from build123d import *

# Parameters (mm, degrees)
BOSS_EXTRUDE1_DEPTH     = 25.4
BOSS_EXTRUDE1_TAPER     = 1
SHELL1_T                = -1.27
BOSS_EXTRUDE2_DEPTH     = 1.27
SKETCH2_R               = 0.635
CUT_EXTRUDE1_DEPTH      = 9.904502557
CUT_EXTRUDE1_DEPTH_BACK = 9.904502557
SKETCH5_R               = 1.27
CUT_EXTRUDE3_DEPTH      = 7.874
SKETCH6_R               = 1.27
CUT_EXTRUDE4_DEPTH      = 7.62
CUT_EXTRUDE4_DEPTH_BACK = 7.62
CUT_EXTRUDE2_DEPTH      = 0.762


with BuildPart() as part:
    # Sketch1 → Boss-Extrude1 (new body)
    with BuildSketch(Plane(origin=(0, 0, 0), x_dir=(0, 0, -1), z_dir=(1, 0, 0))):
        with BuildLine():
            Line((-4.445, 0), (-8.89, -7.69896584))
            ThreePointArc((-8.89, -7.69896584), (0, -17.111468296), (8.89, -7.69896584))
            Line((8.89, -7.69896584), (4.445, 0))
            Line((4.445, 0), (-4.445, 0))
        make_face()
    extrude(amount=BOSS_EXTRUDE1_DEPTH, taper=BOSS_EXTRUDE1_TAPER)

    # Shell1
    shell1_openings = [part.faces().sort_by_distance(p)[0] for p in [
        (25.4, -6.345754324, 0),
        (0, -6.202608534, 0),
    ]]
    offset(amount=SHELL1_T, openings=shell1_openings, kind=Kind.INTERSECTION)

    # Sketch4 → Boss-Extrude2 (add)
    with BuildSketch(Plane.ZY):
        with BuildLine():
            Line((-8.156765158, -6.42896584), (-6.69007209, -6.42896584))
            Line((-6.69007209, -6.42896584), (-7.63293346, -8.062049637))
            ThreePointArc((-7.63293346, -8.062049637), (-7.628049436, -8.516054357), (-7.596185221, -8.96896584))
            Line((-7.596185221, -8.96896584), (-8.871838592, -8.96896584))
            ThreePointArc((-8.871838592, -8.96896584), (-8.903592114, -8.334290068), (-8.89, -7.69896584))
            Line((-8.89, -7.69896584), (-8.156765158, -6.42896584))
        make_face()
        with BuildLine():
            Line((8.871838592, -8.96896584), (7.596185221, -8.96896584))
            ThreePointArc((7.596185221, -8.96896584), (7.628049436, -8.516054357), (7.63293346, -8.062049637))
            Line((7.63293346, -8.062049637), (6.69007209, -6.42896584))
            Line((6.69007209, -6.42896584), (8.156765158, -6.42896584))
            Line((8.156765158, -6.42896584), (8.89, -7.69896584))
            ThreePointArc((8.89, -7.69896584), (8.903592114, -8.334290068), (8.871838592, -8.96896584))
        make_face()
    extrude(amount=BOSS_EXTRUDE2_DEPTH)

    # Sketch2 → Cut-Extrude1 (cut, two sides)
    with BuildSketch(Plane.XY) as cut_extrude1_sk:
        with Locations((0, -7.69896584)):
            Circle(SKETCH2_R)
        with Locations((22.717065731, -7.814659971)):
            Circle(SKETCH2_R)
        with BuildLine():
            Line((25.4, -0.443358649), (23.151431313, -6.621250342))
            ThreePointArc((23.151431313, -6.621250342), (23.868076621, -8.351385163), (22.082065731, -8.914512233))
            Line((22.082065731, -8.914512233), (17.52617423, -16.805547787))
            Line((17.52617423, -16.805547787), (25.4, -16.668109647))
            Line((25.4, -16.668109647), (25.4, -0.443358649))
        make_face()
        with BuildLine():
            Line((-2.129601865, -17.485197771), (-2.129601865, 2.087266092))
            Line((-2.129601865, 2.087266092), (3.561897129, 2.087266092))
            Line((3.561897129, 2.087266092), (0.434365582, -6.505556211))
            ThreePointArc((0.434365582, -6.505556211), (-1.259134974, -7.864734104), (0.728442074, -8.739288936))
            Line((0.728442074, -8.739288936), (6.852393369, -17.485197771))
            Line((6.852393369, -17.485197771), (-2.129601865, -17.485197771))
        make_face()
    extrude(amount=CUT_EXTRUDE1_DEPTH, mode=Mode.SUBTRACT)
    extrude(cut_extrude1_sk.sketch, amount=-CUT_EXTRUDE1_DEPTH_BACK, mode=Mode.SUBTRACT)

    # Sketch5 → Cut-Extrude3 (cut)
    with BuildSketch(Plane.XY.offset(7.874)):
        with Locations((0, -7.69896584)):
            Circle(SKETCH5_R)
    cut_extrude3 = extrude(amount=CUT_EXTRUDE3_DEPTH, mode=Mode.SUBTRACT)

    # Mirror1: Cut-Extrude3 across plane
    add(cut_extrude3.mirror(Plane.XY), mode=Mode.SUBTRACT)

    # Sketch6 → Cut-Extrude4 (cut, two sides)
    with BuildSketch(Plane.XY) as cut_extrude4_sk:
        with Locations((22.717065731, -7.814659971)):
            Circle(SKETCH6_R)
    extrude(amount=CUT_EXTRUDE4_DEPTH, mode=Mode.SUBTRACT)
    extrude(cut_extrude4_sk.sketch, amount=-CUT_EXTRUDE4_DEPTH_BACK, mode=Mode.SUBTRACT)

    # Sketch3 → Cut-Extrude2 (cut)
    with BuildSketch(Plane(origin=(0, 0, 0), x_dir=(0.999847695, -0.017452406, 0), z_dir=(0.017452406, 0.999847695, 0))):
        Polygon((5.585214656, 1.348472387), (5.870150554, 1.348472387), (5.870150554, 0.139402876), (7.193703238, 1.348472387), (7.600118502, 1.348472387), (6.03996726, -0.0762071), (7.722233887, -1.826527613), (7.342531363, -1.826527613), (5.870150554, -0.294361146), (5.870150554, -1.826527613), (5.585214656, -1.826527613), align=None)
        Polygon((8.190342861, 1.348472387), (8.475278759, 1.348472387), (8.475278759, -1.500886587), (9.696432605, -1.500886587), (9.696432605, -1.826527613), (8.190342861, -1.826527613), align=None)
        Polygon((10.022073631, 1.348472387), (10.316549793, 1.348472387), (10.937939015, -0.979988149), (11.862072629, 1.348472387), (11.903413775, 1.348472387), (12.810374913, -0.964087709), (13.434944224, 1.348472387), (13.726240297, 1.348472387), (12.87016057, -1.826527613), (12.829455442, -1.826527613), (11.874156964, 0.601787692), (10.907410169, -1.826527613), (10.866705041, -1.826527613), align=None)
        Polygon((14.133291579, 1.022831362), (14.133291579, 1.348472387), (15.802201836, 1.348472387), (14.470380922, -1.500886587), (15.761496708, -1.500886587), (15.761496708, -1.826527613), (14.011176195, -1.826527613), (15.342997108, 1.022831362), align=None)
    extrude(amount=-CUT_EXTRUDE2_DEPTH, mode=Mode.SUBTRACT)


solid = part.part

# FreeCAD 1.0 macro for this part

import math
import FreeCAD as App
import Part
import Sketcher
Q = App.Units.Quantity


def faces_at(feature, points):
    """Names of the faces that lie closest to the given points."""
    faces = feature.Shape.Faces
    near = lambda p: min(range(len(faces)), key=lambda i: faces[i].distToShape(Part.Vertex(*p))[0])
    return sorted({f"Face{near(p) + 1}" for p in points})

doc = App.newDocument("Part")
body = doc.addObject("PartDesign::Body", "Body")

# Sketch on YZ plane
sketch1 = body.newObject("Sketcher::SketchObject", "Sketch")
sketch1.AttachmentSupport = (doc.getObject("YZ_Plane"), [""])
sketch1.MapMode = "FlatFace"
sketch1.addGeometry(Part.LineSegment(App.Vector(0, 4, 0), App.Vector(-8, 9, 0)), False)
sketch1.addGeometry(Part.ArcOfCircle(Part.Circle(App.Vector(-8, 0, 0), App.Vector(0, 0, 1), 9), math.radians(87), math.radians(273)), False)
sketch1.addGeometry(Part.LineSegment(App.Vector(-8, -9, 0), App.Vector(0, -4, 0)), False)
sketch1.addGeometry(Part.LineSegment(App.Vector(0, -4, 0), App.Vector(0, 4, 0)), False)
sketch1.addConstraint(Sketcher.Constraint("Coincident", 0, 2, 1, 1))
sketch1.addConstraint(Sketcher.Constraint("Coincident", 1, 2, 2, 1))
sketch1.addConstraint(Sketcher.Constraint("Coincident", 2, 2, 3, 1))
sketch1.addConstraint(Sketcher.Constraint("Coincident", 3, 2, 0, 1))
sketch1.addConstraint(Sketcher.Constraint("Vertical", 3))
sketch1.addConstraint(Sketcher.Constraint("Symmetric", 2, 2, 3, 2, -1, 1))
sketch1.addConstraint(Sketcher.Constraint("Symmetric", 0, 2, 1, 2, -1))
sketch1.addConstraint(Sketcher.Constraint("Angle", 0, Q("150 deg")))
sketch1.addConstraint(Sketcher.Constraint("DistanceY", 3, 1, 3, 2, Q("0.35 in")))
sketch1.addConstraint(Sketcher.Constraint("DistanceY", 1, 2, 0, 2, Q("0.7 in")))
sketch1.addConstraint(Sketcher.Constraint("DistanceX", 1, 3, 0, 2, Q("0.02 in")))
pad1 = body.newObject("PartDesign::Pad", "Pad")
pad1.Profile = sketch1
pad1.Length = Q("1 in")
pad1.TaperAngle = -1
doc.recompute()

thickness = body.newObject("PartDesign::Thickness", "Thickness")
thickness.Base = (pad1, faces_at(pad1, [(25.4, -8.442, 0.013), (0, -8.435, 0.013)]))
thickness.Value = Q("0.05 in")
thickness.Reversed = True
thickness.Join = "Intersection"

# Sketch on YZ plane
sketch2 = body.newObject("Sketcher::SketchObject", "Sketch001")
sketch2.AttachmentSupport = (doc.getObject("YZ_Plane"), [""])
sketch2.MapMode = "FlatFace"
sketch2.addGeometry(Part.LineSegment(App.Vector(-6.4, -6.7, 0), App.Vector(-6.4, -8.2, 0)), False)
sketch2.addGeometry(Part.LineSegment(App.Vector(-6.4, -8.2, 0), App.Vector(-7.7, -8.9, 0)), False)
sketch2.addGeometry(Part.ArcOfCircle(Part.Circle(App.Vector(-8.2, 0, 0), App.Vector(0, 0, 1), 8.9), math.radians(-94.91), math.radians(-86.73)), False)
sketch2.addGeometry(Part.LineSegment(App.Vector(-9, -8.9, 0), App.Vector(-9, -7.6, 0)), False)
sketch2.addGeometry(Part.ArcOfCircle(Part.Circle(App.Vector(-8.2, 0, 0), App.Vector(0, 0, 1), 7.6), math.radians(-95.73), math.radians(-88.91)), False)
sketch2.addGeometry(Part.LineSegment(App.Vector(-8.1, -7.6, 0), App.Vector(-6.4, -6.7, 0)), False)
sketch2.addGeometry(Part.LineSegment(App.Vector(-9, 7.6, 0), App.Vector(-9, 8.9, 0)), False)
sketch2.addGeometry(Part.ArcOfCircle(Part.Circle(App.Vector(-8.2, 0, 0), App.Vector(0, 0, 1), 8.9), math.radians(86.73), math.radians(94.91)), False)
sketch2.addGeometry(Part.LineSegment(App.Vector(-7.7, 8.9, 0), App.Vector(-6.4, 8.2, 0)), False)
sketch2.addGeometry(Part.LineSegment(App.Vector(-6.4, 8.2, 0), App.Vector(-6.4, 6.7, 0)), False)
sketch2.addGeometry(Part.LineSegment(App.Vector(-6.4, 6.7, 0), App.Vector(-8.1, 7.6, 0)), False)
sketch2.addGeometry(Part.ArcOfCircle(Part.Circle(App.Vector(-8.2, 0, 0), App.Vector(0, 0, 1), 7.6), math.radians(88.91), math.radians(95.73)), False)
sketch2.addConstraint(Sketcher.Constraint("Coincident", 0, 2, 1, 1))
sketch2.addConstraint(Sketcher.Constraint("Coincident", 1, 2, 2, 2))
sketch2.addConstraint(Sketcher.Constraint("Coincident", 2, 1, 3, 1))
sketch2.addConstraint(Sketcher.Constraint("Coincident", 3, 2, 4, 1))
sketch2.addConstraint(Sketcher.Constraint("Coincident", 4, 2, 5, 1))
sketch2.addConstraint(Sketcher.Constraint("Coincident", 5, 2, 0, 1))
sketch2.addConstraint(Sketcher.Constraint("Coincident", 6, 2, 7, 2))
sketch2.addConstraint(Sketcher.Constraint("Coincident", 7, 1, 8, 1))
sketch2.addConstraint(Sketcher.Constraint("Coincident", 8, 2, 9, 1))
sketch2.addConstraint(Sketcher.Constraint("Coincident", 9, 2, 10, 1))
sketch2.addConstraint(Sketcher.Constraint("Coincident", 10, 2, 11, 1))
sketch2.addConstraint(Sketcher.Constraint("Coincident", 11, 2, 6, 1))
sketch2.addConstraint(Sketcher.Constraint("Vertical", 0))
sketch2.addConstraint(Sketcher.Constraint("Vertical", 3))
sketch2.addConstraint(Sketcher.Constraint("Vertical", 6))
sketch2.addConstraint(Sketcher.Constraint("Vertical", 9))
sketch2.addConstraint(Sketcher.Constraint("Coincident", 4, 3, 2, 3))
sketch2.addConstraint(Sketcher.Constraint("Coincident", 7, 3, 2, 3))
sketch2.addConstraint(Sketcher.Constraint("Coincident", 11, 3, 2, 3))
sketch2.addConstraint(Sketcher.Constraint("Equal", 2, 7))
sketch2.addConstraint(Sketcher.Constraint("Equal", 4, 11))
sketch2.addConstraint(Sketcher.Constraint("Symmetric", 2, 1, 6, 2, -1))
sketch2.addConstraint(Sketcher.Constraint("Symmetric", 0, 2, 8, 2, -1))
sketch2.addConstraint(Sketcher.Constraint("Parallel", 1, 5))
sketch2.addConstraint(Sketcher.Constraint("Parallel", 8, 10))
sketch2.addConstraint(Sketcher.Constraint("Vertical", 1, 2, 7, 1))
sketch2.addConstraint(Sketcher.Constraint("Vertical", 4, 2, 10, 2))
sketch2.addConstraint(Sketcher.Constraint("Angle", 1, Q("-150 deg")))
sketch2.addConstraint(Sketcher.Constraint("DistanceX", 2, 1, 0, 2, Q("0.1 in")))
sketch2.addConstraint(Sketcher.Constraint("DistanceY", 1, 2, -1, 1, Q("0.35 in")))
sketch2.addConstraint(Sketcher.Constraint("DistanceX", 7, 3, 0, 2, Q("0.07 in")))
sketch2.addConstraint(Sketcher.Constraint("DistanceX", 1, 2, 0, 2, Q("0.05 in")))
sketch2.addConstraint(Sketcher.Constraint("Radius", 4, Q("7.634309 mm")))
sketch2.addConstraint(Sketcher.Constraint("DistanceY", 0, 2, 0, 1, Q("1.466693 mm")))
sketch2.addConstraint(Sketcher.Constraint("DistanceX", 4, 2, -1, 1, Q("8.06205 mm")))
pad2 = body.newObject("PartDesign::Pad", "Pad001")
pad2.Profile = sketch2
pad2.Length = Q("0.05 in")
pad2.Reversed = True

# Sketch on XY plane
sketch3 = body.newObject("Sketcher::SketchObject", "Sketch002")
sketch3.AttachmentSupport = (doc.getObject("XY_Plane"), [""])
sketch3.MapMode = "FlatFace"
sketch3.addGeometry(Part.Circle(App.Vector(0, -7.7, 0), App.Vector(0, 0, 1), 0.6), False)
sketch3.addGeometry(Part.Circle(App.Vector(22.7, -7.8, 0), App.Vector(0, 0, 1), 0.6), False)
sketch3.addGeometry(Part.LineSegment(App.Vector(25.4, -0.4, 0), App.Vector(23.2, -6.6, 0)), False)
sketch3.addGeometry(Part.ArcOfCircle(Part.Circle(App.Vector(22.7, -7.8, 0), App.Vector(0, 0, 1), 1.3), math.radians(-120), math.radians(70)), False)
sketch3.addGeometry(Part.LineSegment(App.Vector(22.1, -8.9, 0), App.Vector(17.5, -16.8, 0)), False)
sketch3.addGeometry(Part.LineSegment(App.Vector(17.5, -16.8, 0), App.Vector(25.4, -16.7, 0)), False)
sketch3.addGeometry(Part.LineSegment(App.Vector(25.4, -16.7, 0), App.Vector(25.4, -0.4, 0)), False)
sketch3.addGeometry(Part.LineSegment(App.Vector(-2.1, 2.1, 0), App.Vector(-2.1, -17.5, 0)), False)
sketch3.addGeometry(Part.LineSegment(App.Vector(-2.1, -17.5, 0), App.Vector(6.9, -17.5, 0)), False)
sketch3.addGeometry(Part.LineSegment(App.Vector(6.9, -17.5, 0), App.Vector(0.7, -8.7, 0)), False)
sketch3.addGeometry(Part.ArcOfCircle(Part.Circle(App.Vector(0, -7.7, 0), App.Vector(0, 0, 1), 1.3), math.radians(70), math.radians(305)), False)
sketch3.addGeometry(Part.LineSegment(App.Vector(0.4, -6.5, 0), App.Vector(3.6, 2.1, 0)), False)
sketch3.addGeometry(Part.LineSegment(App.Vector(3.6, 2.1, 0), App.Vector(-2.1, 2.1, 0)), False)
sketch3.addConstraint(Sketcher.Constraint("Coincident", 2, 2, 3, 2))
sketch3.addConstraint(Sketcher.Constraint("Coincident", 3, 1, 4, 1))
sketch3.addConstraint(Sketcher.Constraint("Coincident", 4, 2, 5, 1))
sketch3.addConstraint(Sketcher.Constraint("Coincident", 5, 2, 6, 1))
sketch3.addConstraint(Sketcher.Constraint("Coincident", 6, 2, 2, 1))
sketch3.addConstraint(Sketcher.Constraint("Coincident", 7, 2, 8, 1))
sketch3.addConstraint(Sketcher.Constraint("Coincident", 8, 2, 9, 1))
sketch3.addConstraint(Sketcher.Constraint("Coincident", 9, 2, 10, 2))
sketch3.addConstraint(Sketcher.Constraint("Coincident", 10, 1, 11, 1))
sketch3.addConstraint(Sketcher.Constraint("Coincident", 11, 2, 12, 1))
sketch3.addConstraint(Sketcher.Constraint("Coincident", 12, 2, 7, 1))
sketch3.addConstraint(Sketcher.Constraint("Vertical", 6))
sketch3.addConstraint(Sketcher.Constraint("Vertical", 7))
sketch3.addConstraint(Sketcher.Constraint("Horizontal", 8))
sketch3.addConstraint(Sketcher.Constraint("Horizontal", 12))
sketch3.addConstraint(Sketcher.Constraint("Coincident", 3, 3, 1, 3))
sketch3.addConstraint(Sketcher.Constraint("Coincident", 10, 3, 0, 3))
sketch3.addConstraint(Sketcher.Constraint("Equal", 0, 1))
sketch3.addConstraint(Sketcher.Constraint("Equal", 3, 10))
sketch3.addConstraint(Sketcher.Constraint("PointOnObject", 0, 3, -2))
sketch3.addConstraint(Sketcher.Constraint("Parallel", 2, 11))
sketch3.addConstraint(Sketcher.Constraint("Diameter", 0, Q("0.05 in")))
sketch3.addConstraint(Sketcher.Constraint("Radius", 3, Q("0.05 in")))
sketch3.addConstraint(Sketcher.Constraint("DistanceX", -1, 1, 5, 2, Q("1 in")))
sketch3.addConstraint(Sketcher.Constraint("Angle", 2, Q("-110 deg")))
sketch3.addConstraint(Sketcher.Constraint("Angle", 4, Q("-120 deg")))
sketch3.addConstraint(Sketcher.Constraint("Angle", 5, Q("1 deg")))
sketch3.addConstraint(Sketcher.Constraint("Angle", 9, Q("125 deg")))
sketch3.addConstraint(Sketcher.Constraint("DistanceX", 3, 1, 1, 3, Q("0.025 in")))
sketch3.addConstraint(Sketcher.Constraint("DistanceX", 12, 2, 12, 1, Q("5.691499 mm")))
sketch3.addConstraint(Sketcher.Constraint("DistanceY", 10, 1, 11, 2, Q("0.3383001 in")))
sketch3.addConstraint(Sketcher.Constraint("DistanceY", 6, 1, 6, 2, Q("16.224751 mm")))
sketch3.addConstraint(Sketcher.Constraint("DistanceX", 7, 2, -1, 1, Q("2.129602 mm")))
sketch3.addConstraint(Sketcher.Constraint("DistanceY", 3, 3, 6, 2, Q("7.371301 mm")))
sketch3.addConstraint(Sketcher.Constraint("DistanceX", 8, 1, 8, 2, Q("8.981995 mm")))
sketch3.addConstraint(Sketcher.Constraint("DistanceY", 7, 2, 7, 1, Q("19.572464 mm")))
sketch3.addConstraint(Sketcher.Constraint("DistanceY", 1, 3, -1, 1, Q("7.81466 mm")))
sketch3.addConstraint(Sketcher.Constraint("DistanceX", -1, 1, 2, 2, Q("23.151431 mm")))
sketch3.addConstraint(Sketcher.Constraint("DistanceY", 9, 2, -1, 1, Q("8.739289 mm")))
pocket1 = body.newObject("PartDesign::Pocket", "Pocket")
pocket1.Profile = sketch3
pocket1.Type = "ThroughAll"
pocket1.Midplane = True

# Sketch on XY plane
sketch4 = body.newObject("Sketcher::SketchObject", "Sketch003")
sketch4.AttachmentSupport = (doc.getObject("XY_Plane"), [""])
sketch4.MapMode = "FlatFace"
sketch4.AttachmentOffset = App.Placement(App.Vector(0, 0, 0.31 * 25.4), App.Rotation())
sketch4.addGeometry(Part.Circle(App.Vector(0, -7.7, 0), App.Vector(0, 0, 1), 1.3), False)
sketch4.addConstraint(Sketcher.Constraint("PointOnObject", 0, 3, -2))
sketch4.addConstraint(Sketcher.Constraint("Diameter", 0, Q("0.1 in")))
sketch4.addConstraint(Sketcher.Constraint("DistanceY", 0, 3, -1, 1, Q("7.698966 mm")))
pocket2 = body.newObject("PartDesign::Pocket", "Pocket001")
pocket2.Profile = sketch4
pocket2.Length = Q("0.31 in")
pocket2.Reversed = True
doc.recompute()

mirrored = body.newObject("PartDesign::Mirrored", "Mirrored")
mirrored.Originals = [pocket2]
mirrored.MirrorPlane = (doc.getObject("XY_Plane"), [""])
body.Tip = mirrored

# Sketch on XY plane
sketch5 = body.newObject("Sketcher::SketchObject", "Sketch004")
sketch5.AttachmentSupport = (doc.getObject("XY_Plane"), [""])
sketch5.MapMode = "FlatFace"
sketch5.addGeometry(Part.Circle(App.Vector(22.7, -7.8, 0), App.Vector(0, 0, 1), 1.3), False)
sketch5.addConstraint(Sketcher.Constraint("Diameter", 0, Q("0.1 in")))
sketch5.addConstraint(Sketcher.Constraint("DistanceY", 0, 3, -1, 1, Q("7.81466 mm")))
sketch5.addConstraint(Sketcher.Constraint("DistanceX", -1, 1, 0, 3, Q("22.717066 mm")))
pocket3 = body.newObject("PartDesign::Pocket", "Pocket002")
pocket3.Profile = sketch5
pocket3.Type = "TwoLengths"
pocket3.Length = Q("0.3 in")
pocket3.Length2 = Q("0.3 in")
pocket3.Reversed = True

# Sketch on an angled plane
sketch6 = body.newObject("Sketcher::SketchObject", "Sketch005")
sketch6.Placement = App.Placement(App.Vector(0, 0, 0), App.Rotation(App.Vector(0.999847695, -0.017452406, 0), App.Vector(0, 0, -1), App.Vector(0.017452406, 0.999847695, 0), "ZXY"))
sketch6.addGeometry(Part.LineSegment(App.Vector(5.87, 1.348, 0), App.Vector(5.585, 1.348, 0)), False)
sketch6.addGeometry(Part.LineSegment(App.Vector(5.585, 1.348, 0), App.Vector(5.585, -1.827, 0)), False)
sketch6.addGeometry(Part.LineSegment(App.Vector(5.585, -1.827, 0), App.Vector(5.87, -1.827, 0)), False)
sketch6.addGeometry(Part.LineSegment(App.Vector(5.87, -1.827, 0), App.Vector(5.87, -0.294, 0)), False)
sketch6.addGeometry(Part.LineSegment(App.Vector(5.87, -0.294, 0), App.Vector(7.343, -1.827, 0)), False)
sketch6.addGeometry(Part.LineSegment(App.Vector(7.343, -1.827, 0), App.Vector(7.722, -1.827, 0)), False)
sketch6.addGeometry(Part.LineSegment(App.Vector(7.722, -1.827, 0), App.Vector(6.04, -0.076, 0)), False)
sketch6.addGeometry(Part.LineSegment(App.Vector(6.04, -0.076, 0), App.Vector(7.6, 1.348, 0)), False)
sketch6.addGeometry(Part.LineSegment(App.Vector(7.6, 1.348, 0), App.Vector(7.194, 1.348, 0)), False)
sketch6.addGeometry(Part.LineSegment(App.Vector(7.194, 1.348, 0), App.Vector(5.87, 0.139, 0)), False)
sketch6.addGeometry(Part.LineSegment(App.Vector(5.87, 0.139, 0), App.Vector(5.87, 1.348, 0)), False)
sketch6.addGeometry(Part.LineSegment(App.Vector(8.475, 1.348, 0), App.Vector(8.19, 1.348, 0)), False)
sketch6.addGeometry(Part.LineSegment(App.Vector(8.19, 1.348, 0), App.Vector(8.19, -1.827, 0)), False)
sketch6.addGeometry(Part.LineSegment(App.Vector(8.19, -1.827, 0), App.Vector(9.696, -1.827, 0)), False)
sketch6.addGeometry(Part.LineSegment(App.Vector(9.696, -1.827, 0), App.Vector(9.696, -1.501, 0)), False)
sketch6.addGeometry(Part.LineSegment(App.Vector(9.696, -1.501, 0), App.Vector(8.475, -1.501, 0)), False)
sketch6.addGeometry(Part.LineSegment(App.Vector(8.475, -1.501, 0), App.Vector(8.475, 1.348, 0)), False)
sketch6.addGeometry(Part.LineSegment(App.Vector(10.317, 1.348, 0), App.Vector(10.022, 1.348, 0)), False)
sketch6.addGeometry(Part.LineSegment(App.Vector(10.022, 1.348, 0), App.Vector(10.867, -1.827, 0)), False)
sketch6.addGeometry(Part.LineSegment(App.Vector(10.867, -1.827, 0), App.Vector(10.907, -1.827, 0)), False)
sketch6.addGeometry(Part.LineSegment(App.Vector(10.907, -1.827, 0), App.Vector(11.874, 0.602, 0)), False)
sketch6.addGeometry(Part.LineSegment(App.Vector(11.874, 0.602, 0), App.Vector(12.829, -1.827, 0)), False)
sketch6.addGeometry(Part.LineSegment(App.Vector(12.829, -1.827, 0), App.Vector(12.87, -1.827, 0)), False)
sketch6.addGeometry(Part.LineSegment(App.Vector(12.87, -1.827, 0), App.Vector(13.726, 1.348, 0)), False)
sketch6.addGeometry(Part.LineSegment(App.Vector(13.726, 1.348, 0), App.Vector(13.435, 1.348, 0)), False)
sketch6.addGeometry(Part.LineSegment(App.Vector(13.435, 1.348, 0), App.Vector(12.81, -0.964, 0)), False)
sketch6.addGeometry(Part.LineSegment(App.Vector(12.81, -0.964, 0), App.Vector(11.903, 1.348, 0)), False)
sketch6.addGeometry(Part.LineSegment(App.Vector(11.903, 1.348, 0), App.Vector(11.862, 1.348, 0)), False)
sketch6.addGeometry(Part.LineSegment(App.Vector(11.862, 1.348, 0), App.Vector(10.938, -0.98, 0)), False)
sketch6.addGeometry(Part.LineSegment(App.Vector(10.938, -0.98, 0), App.Vector(10.317, 1.348, 0)), False)
sketch6.addGeometry(Part.LineSegment(App.Vector(14.133, 1.348, 0), App.Vector(14.133, 1.023, 0)), False)
sketch6.addGeometry(Part.LineSegment(App.Vector(14.133, 1.023, 0), App.Vector(15.343, 1.023, 0)), False)
sketch6.addGeometry(Part.LineSegment(App.Vector(15.343, 1.023, 0), App.Vector(14.011, -1.827, 0)), False)
sketch6.addGeometry(Part.LineSegment(App.Vector(14.011, -1.827, 0), App.Vector(15.761, -1.827, 0)), False)
sketch6.addGeometry(Part.LineSegment(App.Vector(15.761, -1.827, 0), App.Vector(15.761, -1.501, 0)), False)
sketch6.addGeometry(Part.LineSegment(App.Vector(15.761, -1.501, 0), App.Vector(14.47, -1.501, 0)), False)
sketch6.addGeometry(Part.LineSegment(App.Vector(14.47, -1.501, 0), App.Vector(15.802, 1.348, 0)), False)
sketch6.addGeometry(Part.LineSegment(App.Vector(15.802, 1.348, 0), App.Vector(14.133, 1.348, 0)), False)
sketch6.addConstraint(Sketcher.Constraint("Coincident", 0, 2, 1, 1))
sketch6.addConstraint(Sketcher.Constraint("Coincident", 1, 2, 2, 1))
sketch6.addConstraint(Sketcher.Constraint("Coincident", 2, 2, 3, 1))
sketch6.addConstraint(Sketcher.Constraint("Coincident", 3, 2, 4, 1))
sketch6.addConstraint(Sketcher.Constraint("Coincident", 4, 2, 5, 1))
sketch6.addConstraint(Sketcher.Constraint("Coincident", 5, 2, 6, 1))
sketch6.addConstraint(Sketcher.Constraint("Coincident", 6, 2, 7, 1))
sketch6.addConstraint(Sketcher.Constraint("Coincident", 7, 2, 8, 1))
sketch6.addConstraint(Sketcher.Constraint("Coincident", 8, 2, 9, 1))
sketch6.addConstraint(Sketcher.Constraint("Coincident", 9, 2, 10, 1))
sketch6.addConstraint(Sketcher.Constraint("Coincident", 10, 2, 0, 1))
sketch6.addConstraint(Sketcher.Constraint("Coincident", 11, 2, 12, 1))
sketch6.addConstraint(Sketcher.Constraint("Coincident", 12, 2, 13, 1))
sketch6.addConstraint(Sketcher.Constraint("Coincident", 13, 2, 14, 1))
sketch6.addConstraint(Sketcher.Constraint("Coincident", 14, 2, 15, 1))
sketch6.addConstraint(Sketcher.Constraint("Coincident", 15, 2, 16, 1))
sketch6.addConstraint(Sketcher.Constraint("Coincident", 16, 2, 11, 1))
sketch6.addConstraint(Sketcher.Constraint("Coincident", 17, 2, 18, 1))
sketch6.addConstraint(Sketcher.Constraint("Coincident", 18, 2, 19, 1))
sketch6.addConstraint(Sketcher.Constraint("Coincident", 19, 2, 20, 1))
sketch6.addConstraint(Sketcher.Constraint("Coincident", 20, 2, 21, 1))
sketch6.addConstraint(Sketcher.Constraint("Coincident", 21, 2, 22, 1))
sketch6.addConstraint(Sketcher.Constraint("Coincident", 22, 2, 23, 1))
sketch6.addConstraint(Sketcher.Constraint("Coincident", 23, 2, 24, 1))
sketch6.addConstraint(Sketcher.Constraint("Coincident", 24, 2, 25, 1))
sketch6.addConstraint(Sketcher.Constraint("Coincident", 25, 2, 26, 1))
sketch6.addConstraint(Sketcher.Constraint("Coincident", 26, 2, 27, 1))
sketch6.addConstraint(Sketcher.Constraint("Coincident", 27, 2, 28, 1))
sketch6.addConstraint(Sketcher.Constraint("Coincident", 28, 2, 29, 1))
sketch6.addConstraint(Sketcher.Constraint("Coincident", 29, 2, 17, 1))
sketch6.addConstraint(Sketcher.Constraint("Coincident", 30, 2, 31, 1))
sketch6.addConstraint(Sketcher.Constraint("Coincident", 31, 2, 32, 1))
sketch6.addConstraint(Sketcher.Constraint("Coincident", 32, 2, 33, 1))
sketch6.addConstraint(Sketcher.Constraint("Coincident", 33, 2, 34, 1))
sketch6.addConstraint(Sketcher.Constraint("Coincident", 34, 2, 35, 1))
sketch6.addConstraint(Sketcher.Constraint("Coincident", 35, 2, 36, 1))
sketch6.addConstraint(Sketcher.Constraint("Coincident", 36, 2, 37, 1))
sketch6.addConstraint(Sketcher.Constraint("Coincident", 37, 2, 30, 1))
sketch6.addConstraint(Sketcher.Constraint("Horizontal", 0))
sketch6.addConstraint(Sketcher.Constraint("Vertical", 1))
sketch6.addConstraint(Sketcher.Constraint("Horizontal", 2))
sketch6.addConstraint(Sketcher.Constraint("Vertical", 3))
sketch6.addConstraint(Sketcher.Constraint("Horizontal", 5))
sketch6.addConstraint(Sketcher.Constraint("Horizontal", 8))
sketch6.addConstraint(Sketcher.Constraint("Vertical", 10))
sketch6.addConstraint(Sketcher.Constraint("Horizontal", 11))
sketch6.addConstraint(Sketcher.Constraint("Vertical", 12))
sketch6.addConstraint(Sketcher.Constraint("Horizontal", 13))
sketch6.addConstraint(Sketcher.Constraint("Vertical", 14))
sketch6.addConstraint(Sketcher.Constraint("Horizontal", 15))
sketch6.addConstraint(Sketcher.Constraint("Vertical", 16))
sketch6.addConstraint(Sketcher.Constraint("Horizontal", 17))
sketch6.addConstraint(Sketcher.Constraint("Horizontal", 19))
sketch6.addConstraint(Sketcher.Constraint("Horizontal", 22))
sketch6.addConstraint(Sketcher.Constraint("Horizontal", 24))
sketch6.addConstraint(Sketcher.Constraint("Horizontal", 27))
sketch6.addConstraint(Sketcher.Constraint("Vertical", 30))
sketch6.addConstraint(Sketcher.Constraint("Horizontal", 31))
sketch6.addConstraint(Sketcher.Constraint("Horizontal", 33))
sketch6.addConstraint(Sketcher.Constraint("Vertical", 34))
sketch6.addConstraint(Sketcher.Constraint("Horizontal", 35))
sketch6.addConstraint(Sketcher.Constraint("Horizontal", 37))
sketch6.addConstraint(Sketcher.Constraint("Parallel", 32, 36))
sketch6.addConstraint(Sketcher.Constraint("Horizontal", 2, 2, 4, 2))
sketch6.addConstraint(Sketcher.Constraint("Horizontal", 0, 2, 7, 2))
sketch6.addConstraint(Sketcher.Constraint("Horizontal", 10, 2, 11, 2))
sketch6.addConstraint(Sketcher.Constraint("Horizontal", 5, 2, 12, 2))
sketch6.addConstraint(Sketcher.Constraint("Horizontal", 16, 2, 17, 2))
sketch6.addConstraint(Sketcher.Constraint("Horizontal", 13, 2, 18, 2))
sketch6.addConstraint(Sketcher.Constraint("Horizontal", 19, 2, 21, 2))
sketch6.addConstraint(Sketcher.Constraint("Horizontal", 17, 2, 23, 2))
sketch6.addConstraint(Sketcher.Constraint("Horizontal", 24, 2, 26, 2))
sketch6.addConstraint(Sketcher.Constraint("Horizontal", 22, 2, 32, 2))
sketch6.addConstraint(Sketcher.Constraint("Horizontal", 15, 2, 34, 2))
sketch6.addConstraint(Sketcher.Constraint("Horizontal", 29, 2, 36, 2))
sketch6.addConstraint(Sketcher.Constraint("Vertical", 3, 2, 9, 2))
sketch6.addConstraint(Sketcher.Constraint("Equal", 2, 11))
sketch6.addConstraint(Sketcher.Constraint("Equal", 19, 22))
sketch6.addConstraint(Sketcher.Constraint("Equal", 14, 30))
sketch6.addConstraint(Sketcher.Constraint("DistanceY", 1, 2, 1, 1, Q("0.125 in")))
sketch6.addConstraint(Sketcher.Constraint("DistanceX", -1, 1, 35, 2, Q("0.5697 in")))
sketch6.addConstraint(Sketcher.Constraint("DistanceX", 13, 1, 13, 2, Q("1.50609 mm")))
sketch6.addConstraint(Sketcher.Constraint("DistanceX", 27, 2, 27, 1, Q("0.041341 mm")))
sketch6.addConstraint(Sketcher.Constraint("DistanceX", 33, 1, 33, 2, Q("1.750321 mm")))
sketch6.addConstraint(Sketcher.Constraint("DistanceX", 37, 2, 37, 1, Q("1.66891 mm")))
sketch6.addConstraint(Sketcher.Constraint("DistanceY", 10, 1, 10, 2, Q("1.20907 mm")))
sketch6.addConstraint(Sketcher.Constraint("DistanceY", 14, 1, 14, 2, Q("0.325641 mm")))
sketch6.addConstraint(Sketcher.Constraint("DistanceX", -1, 1, 36, 2, Q("15.802202 mm")))
sketch6.addConstraint(Sketcher.Constraint("DistanceX", 5, 2, 13, 2, Q("1.974199 mm")))
sketch6.addConstraint(Sketcher.Constraint("DistanceX", 4, 2, 13, 2, Q("2.353901 mm")))
sketch6.addConstraint(Sketcher.Constraint("DistanceX", 20, 2, 21, 2, Q("0.955298 mm")))
sketch6.addConstraint(Sketcher.Constraint("DistanceX", 17, 2, 27, 2, Q("1.839999 mm")))
sketch6.addConstraint(Sketcher.Constraint("DistanceY", 14, 2, 28, 2, Q("0.520898 mm")))
sketch6.addConstraint(Sketcher.Constraint("DistanceX", 25, 2, 32, 2, Q("1.200801 mm")))
sketch6.addConstraint(Sketcher.Constraint("Distance", 20, Q("2.613678 mm")))
sketch6.addConstraint(Sketcher.Constraint("Distance", 23, Q("3.288388 mm")))
sketch6.addConstraint(Sketcher.Constraint("Distance", 26, Q("2.484052 mm")))
sketch6.addConstraint(Sketcher.Constraint("Distance", 29, Q("2.409949 mm")))
sketch6.addConstraint(Sketcher.Constraint("DistanceX", 0, 2, 0, 1, Q("0.284936 mm")))
sketch6.addConstraint(Sketcher.Constraint("DistanceX", 8, 2, 8, 1, Q("0.406415 mm")))
sketch6.addConstraint(Sketcher.Constraint("DistanceX", 17, 2, 17, 1, Q("0.294476 mm")))
sketch6.addConstraint(Sketcher.Constraint("DistanceX", 19, 1, 19, 2, Q("0.040705 mm")))
sketch6.addConstraint(Sketcher.Constraint("DistanceX", 24, 2, 24, 1, Q("0.291296 mm")))
sketch6.addConstraint(Sketcher.Constraint("DistanceX", 31, 1, 31, 2, Q("1.209706 mm")))
sketch6.addConstraint(Sketcher.Constraint("DistanceY", 3, 1, 3, 2, Q("1.532166 mm")))
sketch6.addConstraint(Sketcher.Constraint("DistanceX", -1, 1, 2, 2, Q("5.870151 mm")))
sketch6.addConstraint(Sketcher.Constraint("DistanceY", 3, 2, -1, 1, Q("0.294361 mm")))
sketch6.addConstraint(Sketcher.Constraint("DistanceX", -1, 1, 4, 2, Q("7.342531 mm")))
sketch6.addConstraint(Sketcher.Constraint("DistanceX", -1, 1, 7, 2, Q("7.600118 mm")))
sketch6.addConstraint(Sketcher.Constraint("DistanceX", -1, 1, 19, 2, Q("10.90741 mm")))
sketch6.addConstraint(Sketcher.Constraint("DistanceX", -1, 1, 22, 2, Q("12.870161 mm")))
sketch6.addConstraint(Sketcher.Constraint("DistanceX", -1, 1, 28, 2, Q("10.937939 mm")))
sketch6.addConstraint(Sketcher.Constraint("DistanceY", 6, 2, 0, 2, Q("1.424679 mm")))
sketch6.addConstraint(Sketcher.Constraint("DistanceX", 6, 2, 7, 2, Q("1.560151 mm")))
pocket4 = body.newObject("PartDesign::Pocket", "Pocket003")
pocket4.Profile = sketch6
pocket4.Length = Q("0.03 in")

doc.recompute()
